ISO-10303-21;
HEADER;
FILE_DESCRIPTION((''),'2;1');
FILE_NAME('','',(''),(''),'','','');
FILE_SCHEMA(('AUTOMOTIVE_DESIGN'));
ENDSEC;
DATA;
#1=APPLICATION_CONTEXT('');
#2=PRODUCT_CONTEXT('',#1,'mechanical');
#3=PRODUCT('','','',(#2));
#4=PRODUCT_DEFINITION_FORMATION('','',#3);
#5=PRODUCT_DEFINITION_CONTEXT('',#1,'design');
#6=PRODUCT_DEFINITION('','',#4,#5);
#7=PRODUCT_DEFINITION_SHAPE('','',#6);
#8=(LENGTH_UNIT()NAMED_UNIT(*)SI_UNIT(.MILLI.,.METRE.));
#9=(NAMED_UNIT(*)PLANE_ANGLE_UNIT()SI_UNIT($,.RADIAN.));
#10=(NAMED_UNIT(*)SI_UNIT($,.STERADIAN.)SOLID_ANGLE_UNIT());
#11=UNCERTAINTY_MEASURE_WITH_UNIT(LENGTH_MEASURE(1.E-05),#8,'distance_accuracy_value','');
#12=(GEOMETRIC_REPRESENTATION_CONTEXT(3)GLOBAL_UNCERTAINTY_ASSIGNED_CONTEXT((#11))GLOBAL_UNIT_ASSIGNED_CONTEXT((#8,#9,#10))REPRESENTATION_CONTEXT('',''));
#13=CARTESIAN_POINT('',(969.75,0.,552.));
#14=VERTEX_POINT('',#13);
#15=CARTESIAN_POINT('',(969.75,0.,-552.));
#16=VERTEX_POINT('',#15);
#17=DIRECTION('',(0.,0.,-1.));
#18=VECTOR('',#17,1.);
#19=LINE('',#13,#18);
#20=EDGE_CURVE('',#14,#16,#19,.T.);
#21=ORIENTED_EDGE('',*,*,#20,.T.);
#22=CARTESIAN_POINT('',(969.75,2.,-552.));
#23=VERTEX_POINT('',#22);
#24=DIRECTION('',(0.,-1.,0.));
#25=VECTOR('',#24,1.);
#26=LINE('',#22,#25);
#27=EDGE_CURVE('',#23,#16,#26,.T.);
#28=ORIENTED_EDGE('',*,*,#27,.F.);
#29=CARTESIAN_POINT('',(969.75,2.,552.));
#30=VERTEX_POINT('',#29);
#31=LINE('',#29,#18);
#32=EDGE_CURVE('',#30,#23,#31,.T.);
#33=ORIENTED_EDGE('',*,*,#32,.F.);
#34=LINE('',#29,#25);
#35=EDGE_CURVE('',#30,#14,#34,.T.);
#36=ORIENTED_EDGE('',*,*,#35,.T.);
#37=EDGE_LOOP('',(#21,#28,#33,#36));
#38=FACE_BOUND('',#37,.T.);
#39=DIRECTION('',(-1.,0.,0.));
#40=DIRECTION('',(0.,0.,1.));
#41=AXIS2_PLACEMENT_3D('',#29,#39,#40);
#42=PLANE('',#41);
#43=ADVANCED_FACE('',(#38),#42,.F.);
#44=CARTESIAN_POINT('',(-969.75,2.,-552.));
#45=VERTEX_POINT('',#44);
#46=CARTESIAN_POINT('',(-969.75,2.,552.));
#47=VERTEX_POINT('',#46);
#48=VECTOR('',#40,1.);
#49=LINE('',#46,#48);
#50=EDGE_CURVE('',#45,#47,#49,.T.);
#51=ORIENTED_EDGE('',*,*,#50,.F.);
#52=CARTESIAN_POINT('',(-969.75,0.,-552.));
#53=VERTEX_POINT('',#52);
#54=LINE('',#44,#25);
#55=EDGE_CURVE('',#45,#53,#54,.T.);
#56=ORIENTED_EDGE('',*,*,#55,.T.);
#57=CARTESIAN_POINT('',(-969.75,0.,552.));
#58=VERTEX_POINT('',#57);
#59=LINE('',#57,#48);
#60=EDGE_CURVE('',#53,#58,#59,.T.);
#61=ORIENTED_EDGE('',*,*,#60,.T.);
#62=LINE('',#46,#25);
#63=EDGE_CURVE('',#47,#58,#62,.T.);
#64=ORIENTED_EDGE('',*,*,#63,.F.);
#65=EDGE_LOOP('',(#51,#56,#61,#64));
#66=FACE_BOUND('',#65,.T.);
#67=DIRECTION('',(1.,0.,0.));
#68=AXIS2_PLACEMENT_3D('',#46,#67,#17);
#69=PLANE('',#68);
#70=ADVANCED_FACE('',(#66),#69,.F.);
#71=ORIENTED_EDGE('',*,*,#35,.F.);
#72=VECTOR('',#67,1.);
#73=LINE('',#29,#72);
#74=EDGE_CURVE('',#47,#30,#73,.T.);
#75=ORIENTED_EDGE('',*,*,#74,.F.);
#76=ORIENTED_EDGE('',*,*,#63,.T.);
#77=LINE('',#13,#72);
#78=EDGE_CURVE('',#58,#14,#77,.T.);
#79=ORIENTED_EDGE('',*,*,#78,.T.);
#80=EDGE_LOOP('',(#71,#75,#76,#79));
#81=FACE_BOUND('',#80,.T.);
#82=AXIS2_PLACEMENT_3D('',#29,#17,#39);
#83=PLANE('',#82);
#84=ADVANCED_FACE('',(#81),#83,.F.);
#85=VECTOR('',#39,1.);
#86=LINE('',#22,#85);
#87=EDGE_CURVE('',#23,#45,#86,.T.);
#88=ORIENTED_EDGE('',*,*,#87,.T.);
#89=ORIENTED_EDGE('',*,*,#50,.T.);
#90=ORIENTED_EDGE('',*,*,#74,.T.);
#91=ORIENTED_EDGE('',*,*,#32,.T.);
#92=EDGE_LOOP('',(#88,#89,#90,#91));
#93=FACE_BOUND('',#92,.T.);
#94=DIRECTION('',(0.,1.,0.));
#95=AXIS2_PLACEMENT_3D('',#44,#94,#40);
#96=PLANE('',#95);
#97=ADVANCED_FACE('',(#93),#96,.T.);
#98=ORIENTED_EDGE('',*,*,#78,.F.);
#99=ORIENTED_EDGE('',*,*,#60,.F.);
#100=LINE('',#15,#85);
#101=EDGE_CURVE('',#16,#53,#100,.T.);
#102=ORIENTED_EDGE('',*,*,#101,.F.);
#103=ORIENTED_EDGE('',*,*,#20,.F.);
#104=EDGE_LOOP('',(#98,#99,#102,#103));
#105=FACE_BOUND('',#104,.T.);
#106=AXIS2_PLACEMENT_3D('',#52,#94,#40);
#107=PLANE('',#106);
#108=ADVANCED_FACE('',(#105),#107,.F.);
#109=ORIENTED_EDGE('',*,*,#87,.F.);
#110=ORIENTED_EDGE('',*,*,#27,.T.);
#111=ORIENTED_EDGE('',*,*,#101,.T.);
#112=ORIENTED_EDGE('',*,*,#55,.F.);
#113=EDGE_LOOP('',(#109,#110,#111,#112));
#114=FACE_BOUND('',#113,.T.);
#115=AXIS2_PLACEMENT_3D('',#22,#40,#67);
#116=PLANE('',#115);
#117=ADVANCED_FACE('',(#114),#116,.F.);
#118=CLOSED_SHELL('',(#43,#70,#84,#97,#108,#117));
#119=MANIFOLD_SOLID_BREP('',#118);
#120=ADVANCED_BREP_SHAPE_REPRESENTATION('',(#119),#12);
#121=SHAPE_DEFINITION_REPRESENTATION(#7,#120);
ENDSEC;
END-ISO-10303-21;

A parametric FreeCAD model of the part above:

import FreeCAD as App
import Part
import Sketcher

V = App.Vector
Q = App.Units.Quantity

doc = App.newDocument("Part")
body = doc.addObject("PartDesign::Body", "Body")

# Sketch on XZ plane
sketch1 = body.newObject("Sketcher::SketchObject", "Sketch")
sketch1.AttachmentSupport = (doc.getObject("XZ_Plane"), [""])
sketch1.MapMode = "FlatFace"
sketch1.addGeometry([
    Part.LineSegment(V(-970, -552, 0), V(-970, 552, 0)),
    Part.LineSegment(V(-970, 552, 0), V(970, 552, 0)),
    Part.LineSegment(V(970, 552, 0), V(970, -552, 0)),
    Part.LineSegment(V(970, -552, 0), V(-970, -552, 0)),
], False)
sketch1.addConstraint([
    Sketcher.Constraint("Coincident", 0, 2, 1, 1),
    Sketcher.Constraint("Coincident", 1, 2, 2, 1),
    Sketcher.Constraint("Coincident", 2, 2, 3, 1),
    Sketcher.Constraint("Coincident", 3, 2, 0, 1),
    Sketcher.Constraint("Vertical", 0),
    Sketcher.Constraint("Horizontal", 1),
    Sketcher.Constraint("Vertical", 2),
    Sketcher.Constraint("Horizontal", 3),
    Sketcher.Constraint("Symmetric", 0, 2, 2, 2, -1, 1),
    Sketcher.Constraint("DistanceY", 0, 1, 0, 2, Q("1104 mm")),
    Sketcher.Constraint("DistanceX", 1, 1, 1, 2, Q("1939.5 mm")),
])
pad1 = body.newObject("PartDesign::Pad", "Pad")
pad1.Profile = sketch1
pad1.Length = 2
pad1.Reversed = True

doc.recompute()
